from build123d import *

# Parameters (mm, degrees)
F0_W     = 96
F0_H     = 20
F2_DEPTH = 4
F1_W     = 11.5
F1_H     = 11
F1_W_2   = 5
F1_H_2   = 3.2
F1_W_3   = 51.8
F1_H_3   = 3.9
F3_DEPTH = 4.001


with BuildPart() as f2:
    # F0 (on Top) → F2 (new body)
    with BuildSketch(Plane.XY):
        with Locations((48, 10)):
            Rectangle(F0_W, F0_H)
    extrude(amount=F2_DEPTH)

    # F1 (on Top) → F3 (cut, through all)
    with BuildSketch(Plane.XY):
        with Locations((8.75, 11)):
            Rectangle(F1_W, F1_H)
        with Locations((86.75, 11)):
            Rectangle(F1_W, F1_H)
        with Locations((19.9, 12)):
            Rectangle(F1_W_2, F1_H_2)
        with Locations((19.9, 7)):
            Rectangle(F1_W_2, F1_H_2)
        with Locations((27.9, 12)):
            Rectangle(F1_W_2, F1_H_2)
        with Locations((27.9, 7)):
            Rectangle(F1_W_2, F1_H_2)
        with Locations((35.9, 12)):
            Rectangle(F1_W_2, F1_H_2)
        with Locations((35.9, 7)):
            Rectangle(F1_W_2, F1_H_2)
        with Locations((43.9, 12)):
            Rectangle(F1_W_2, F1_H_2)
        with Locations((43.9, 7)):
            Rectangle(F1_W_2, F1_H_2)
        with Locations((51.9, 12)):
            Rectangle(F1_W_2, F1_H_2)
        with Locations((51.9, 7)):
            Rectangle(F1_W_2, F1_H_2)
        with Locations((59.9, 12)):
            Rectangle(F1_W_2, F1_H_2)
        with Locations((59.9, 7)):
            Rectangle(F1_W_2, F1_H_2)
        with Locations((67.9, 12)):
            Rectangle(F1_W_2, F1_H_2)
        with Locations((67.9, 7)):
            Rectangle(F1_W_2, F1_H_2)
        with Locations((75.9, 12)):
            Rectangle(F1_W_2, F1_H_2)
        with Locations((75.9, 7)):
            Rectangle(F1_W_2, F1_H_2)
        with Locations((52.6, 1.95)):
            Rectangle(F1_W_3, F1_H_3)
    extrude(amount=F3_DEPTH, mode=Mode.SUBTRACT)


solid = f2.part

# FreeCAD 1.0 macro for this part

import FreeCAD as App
import Part
import Sketcher
from FreeCAD import Vector
Q = App.Units.Quantity

doc = App.newDocument("Part")
body = doc.addObject("PartDesign::Body", "Body")

sketch1 = body.newObject("Sketcher::SketchObject", "Sketch")
sketch1.AttachmentSupport = (doc.getObject("XY_Plane"), [""])
sketch1.MapMode = "FlatFace"
sketch1.addGeometry([
    Part.LineSegment(Vector(0, 20, 0), Vector(0, 0, 0)),
    Part.LineSegment(Vector(0, 0, 0), Vector(96, 0, 0)),
    Part.LineSegment(Vector(96, 0, 0), Vector(96, 20, 0)),
    Part.LineSegment(Vector(96, 20, 0), Vector(0, 20, 0)),
], False)
sketch1.addConstraint([
    Sketcher.Constraint("Coincident", 0, 2, 1, 1),
    Sketcher.Constraint("Coincident", 1, 2, 2, 1),
    Sketcher.Constraint("Coincident", 2, 2, 3, 1),
    Sketcher.Constraint("Coincident", 3, 2, 0, 1),
    Sketcher.Constraint("Vertical", 0),
    Sketcher.Constraint("Horizontal", 1),
    Sketcher.Constraint("Vertical", 2),
    Sketcher.Constraint("Horizontal", 3),
    Sketcher.Constraint("Coincident", 0, 2, -1, 1),
    Sketcher.Constraint("DistanceX", 1, 1, 1, 2, Q("96 mm")),
    Sketcher.Constraint("DistanceY", 0, 2, 0, 1, Q("20 mm")),
])
pad1 = body.newObject("PartDesign::Pad", "Pad")
pad1.Profile = sketch1
pad1.Length = 4

sketch2 = body.newObject("Sketcher::SketchObject", "Sketch001")
sketch2.AttachmentSupport = (doc.getObject("XY_Plane"), [""])
sketch2.MapMode = "FlatFace"
sketch2.addGeometry([
    Part.LineSegment(Vector(3, 16.5, 0), Vector(3, 5.5, 0)),
    Part.LineSegment(Vector(3, 5.5, 0), Vector(14.5, 5.5, 0)),
    Part.LineSegment(Vector(14.5, 5.5, 0), Vector(14.5, 16.5, 0)),
    Part.LineSegment(Vector(14.5, 16.5, 0), Vector(3, 16.5, 0)),
    Part.LineSegment(Vector(81, 16.5, 0), Vector(81, 5.5, 0)),
    Part.LineSegment(Vector(81, 5.5, 0), Vector(92.5, 5.5, 0)),
    Part.LineSegment(Vector(92.5, 5.5, 0), Vector(92.5, 16.5, 0)),
    Part.LineSegment(Vector(92.5, 16.5, 0), Vector(81, 16.5, 0)),
    Part.LineSegment(Vector(17.4, 13.6, 0), Vector(17.4, 10.4, 0)),
    Part.LineSegment(Vector(17.4, 10.4, 0), Vector(22.4, 10.4, 0)),
    Part.LineSegment(Vector(22.4, 10.4, 0), Vector(22.4, 13.6, 0)),
    Part.LineSegment(Vector(22.4, 13.6, 0), Vector(17.4, 13.6, 0)),
    Part.LineSegment(Vector(17.4, 8.6, 0), Vector(17.4, 5.4, 0)),
    Part.LineSegment(Vector(17.4, 5.4, 0), Vector(22.4, 5.4, 0)),
    Part.LineSegment(Vector(22.4, 5.4, 0), Vector(22.4, 8.6, 0)),
    Part.LineSegment(Vector(22.4, 8.6, 0), Vector(17.4, 8.6, 0)),
    Part.LineSegment(Vector(25.4, 13.6, 0), Vector(25.4, 10.4, 0)),
    Part.LineSegment(Vector(25.4, 10.4, 0), Vector(30.4, 10.4, 0)),
    Part.LineSegment(Vector(30.4, 10.4, 0), Vector(30.4, 13.6, 0)),
    Part.LineSegment(Vector(30.4, 13.6, 0), Vector(25.4, 13.6, 0)),
    Part.LineSegment(Vector(25.4, 8.6, 0), Vector(25.4, 5.4, 0)),
    Part.LineSegment(Vector(25.4, 5.4, 0), Vector(30.4, 5.4, 0)),
    Part.LineSegment(Vector(30.4, 5.4, 0), Vector(30.4, 8.6, 0)),
    Part.LineSegment(Vector(30.4, 8.6, 0), Vector(25.4, 8.6, 0)),
    Part.LineSegment(Vector(33.4, 13.6, 0), Vector(33.4, 10.4, 0)),
    Part.LineSegment(Vector(33.4, 10.4, 0), Vector(38.4, 10.4, 0)),
    Part.LineSegment(Vector(38.4, 10.4, 0), Vector(38.4, 13.6, 0)),
    Part.LineSegment(Vector(38.4, 13.6, 0), Vector(33.4, 13.6, 0)),
    Part.LineSegment(Vector(33.4, 8.6, 0), Vector(33.4, 5.4, 0)),
    Part.LineSegment(Vector(33.4, 5.4, 0), Vector(38.4, 5.4, 0)),
    Part.LineSegment(Vector(38.4, 5.4, 0), Vector(38.4, 8.6, 0)),
    Part.LineSegment(Vector(38.4, 8.6, 0), Vector(33.4, 8.6, 0)),
    Part.LineSegment(Vector(41.4, 13.6, 0), Vector(41.4, 10.4, 0)),
    Part.LineSegment(Vector(41.4, 10.4, 0), Vector(46.4, 10.4, 0)),
    Part.LineSegment(Vector(46.4, 10.4, 0), Vector(46.4, 13.6, 0)),
    Part.LineSegment(Vector(46.4, 13.6, 0), Vector(41.4, 13.6, 0)),
    Part.LineSegment(Vector(41.4, 8.6, 0), Vector(41.4, 5.4, 0)),
    Part.LineSegment(Vector(41.4, 5.4, 0), Vector(46.4, 5.4, 0)),
    Part.LineSegment(Vector(46.4, 5.4, 0), Vector(46.4, 8.6, 0)),
    Part.LineSegment(Vector(46.4, 8.6, 0), Vector(41.4, 8.6, 0)),
    Part.LineSegment(Vector(49.4, 13.6, 0), Vector(49.4, 10.4, 0)),
    Part.LineSegment(Vector(49.4, 10.4, 0), Vector(54.4, 10.4, 0)),
    Part.LineSegment(Vector(54.4, 10.4, 0), Vector(54.4, 13.6, 0)),
    Part.LineSegment(Vector(54.4, 13.6, 0), Vector(49.4, 13.6, 0)),
    Part.LineSegment(Vector(49.4, 8.6, 0), Vector(49.4, 5.4, 0)),
    Part.LineSegment(Vector(49.4, 5.4, 0), Vector(54.4, 5.4, 0)),
    Part.LineSegment(Vector(54.4, 5.4, 0), Vector(54.4, 8.6, 0)),
    Part.LineSegment(Vector(54.4, 8.6, 0), Vector(49.4, 8.6, 0)),
    Part.LineSegment(Vector(57.4, 13.6, 0), Vector(57.4, 10.4, 0)),
    Part.LineSegment(Vector(57.4, 10.4, 0), Vector(62.4, 10.4, 0)),
    Part.LineSegment(Vector(62.4, 10.4, 0), Vector(62.4, 13.6, 0)),
    Part.LineSegment(Vector(62.4, 13.6, 0), Vector(57.4, 13.6, 0)),
    Part.LineSegment(Vector(57.4, 8.6, 0), Vector(57.4, 5.4, 0)),
    Part.LineSegment(Vector(57.4, 5.4, 0), Vector(62.4, 5.4, 0)),
    Part.LineSegment(Vector(62.4, 5.4, 0), Vector(62.4, 8.6, 0)),
    Part.LineSegment(Vector(62.4, 8.6, 0), Vector(57.4, 8.6, 0)),
    Part.LineSegment(Vector(65.4, 13.6, 0), Vector(65.4, 10.4, 0)),
    Part.LineSegment(Vector(65.4, 10.4, 0), Vector(70.4, 10.4, 0)),
    Part.LineSegment(Vector(70.4, 10.4, 0), Vector(70.4, 13.6, 0)),
    Part.LineSegment(Vector(70.4, 13.6, 0), Vector(65.4, 13.6, 0)),
    Part.LineSegment(Vector(65.4, 8.6, 0), Vector(65.4, 5.4, 0)),
    Part.LineSegment(Vector(65.4, 5.4, 0), Vector(70.4, 5.4, 0)),
    Part.LineSegment(Vector(70.4, 5.4, 0), Vector(70.4, 8.6, 0)),
    Part.LineSegment(Vector(70.4, 8.6, 0), Vector(65.4, 8.6, 0)),
    Part.LineSegment(Vector(73.4, 13.6, 0), Vector(73.4, 10.4, 0)),
    Part.LineSegment(Vector(73.4, 10.4, 0), Vector(78.4, 10.4, 0)),
    Part.LineSegment(Vector(78.4, 10.4, 0), Vector(78.4, 13.6, 0)),
    Part.LineSegment(Vector(78.4, 13.6, 0), Vector(73.4, 13.6, 0)),
    Part.LineSegment(Vector(73.4, 8.6, 0), Vector(73.4, 5.4, 0)),
    Part.LineSegment(Vector(73.4, 5.4, 0), Vector(78.4, 5.4, 0)),
    Part.LineSegment(Vector(78.4, 5.4, 0), Vector(78.4, 8.6, 0)),
    Part.LineSegment(Vector(78.4, 8.6, 0), Vector(73.4, 8.6, 0)),
    Part.LineSegment(Vector(26.7, 3.9, 0), Vector(26.7, 0, 0)),
    Part.LineSegment(Vector(26.7, 0, 0), Vector(78.5, 0, 0)),
    Part.LineSegment(Vector(78.5, 0, 0), Vector(78.5, 3.9, 0)),
    Part.LineSegment(Vector(78.5, 3.9, 0), Vector(26.7, 3.9, 0)),
], False)
sketch2.addConstraint([
    Sketcher.Constraint("Coincident", 0, 2, 1, 1),
    Sketcher.Constraint("Coincident", 1, 2, 2, 1),
    Sketcher.Constraint("Coincident", 2, 2, 3, 1),
    Sketcher.Constraint("Coincident", 3, 2, 0, 1),
    Sketcher.Constraint("Coincident", 4, 2, 5, 1),
    Sketcher.Constraint("Coincident", 5, 2, 6, 1),
    Sketcher.Constraint("Coincident", 6, 2, 7, 1),
    Sketcher.Constraint("Coincident", 7, 2, 4, 1),
    Sketcher.Constraint("Coincident", 8, 2, 9, 1),
    Sketcher.Constraint("Coincident", 9, 2, 10, 1),
    Sketcher.Constraint("Coincident", 10, 2, 11, 1),
    Sketcher.Constraint("Coincident", 11, 2, 8, 1),
    Sketcher.Constraint("Coincident", 12, 2, 13, 1),
    Sketcher.Constraint("Coincident", 13, 2, 14, 1),
    Sketcher.Constraint("Coincident", 14, 2, 15, 1),
    Sketcher.Constraint("Coincident", 15, 2, 12, 1),
    Sketcher.Constraint("Coincident", 16, 2, 17, 1),
    Sketcher.Constraint("Coincident", 17, 2, 18, 1),
    Sketcher.Constraint("Coincident", 18, 2, 19, 1),
    Sketcher.Constraint("Coincident", 19, 2, 16, 1),
    Sketcher.Constraint("Coincident", 20, 2, 21, 1),
    Sketcher.Constraint("Coincident", 21, 2, 22, 1),
    Sketcher.Constraint("Coincident", 22, 2, 23, 1),
    Sketcher.Constraint("Coincident", 23, 2, 20, 1),
    Sketcher.Constraint("Coincident", 24, 2, 25, 1),
    Sketcher.Constraint("Coincident", 25, 2, 26, 1),
    Sketcher.Constraint("Coincident", 26, 2, 27, 1),
    Sketcher.Constraint("Coincident", 27, 2, 24, 1),
    Sketcher.Constraint("Coincident", 28, 2, 29, 1),
    Sketcher.Constraint("Coincident", 29, 2, 30, 1),
    Sketcher.Constraint("Coincident", 30, 2, 31, 1),
    Sketcher.Constraint("Coincident", 31, 2, 28, 1),
    Sketcher.Constraint("Coincident", 32, 2, 33, 1),
    Sketcher.Constraint("Coincident", 33, 2, 34, 1),
    Sketcher.Constraint("Coincident", 34, 2, 35, 1),
    Sketcher.Constraint("Coincident", 35, 2, 32, 1),
    Sketcher.Constraint("Coincident", 36, 2, 37, 1),
    Sketcher.Constraint("Coincident", 37, 2, 38, 1),
    Sketcher.Constraint("Coincident", 38, 2, 39, 1),
    Sketcher.Constraint("Coincident", 39, 2, 36, 1),
    Sketcher.Constraint("Coincident", 40, 2, 41, 1),
    Sketcher.Constraint("Coincident", 41, 2, 42, 1),
    Sketcher.Constraint("Coincident", 42, 2, 43, 1),
    Sketcher.Constraint("Coincident", 43, 2, 40, 1),
    Sketcher.Constraint("Coincident", 44, 2, 45, 1),
    Sketcher.Constraint("Coincident", 45, 2, 46, 1),
    Sketcher.Constraint("Coincident", 46, 2, 47, 1),
    Sketcher.Constraint("Coincident", 47, 2, 44, 1),
    Sketcher.Constraint("Coincident", 48, 2, 49, 1),
    Sketcher.Constraint("Coincident", 49, 2, 50, 1),
    Sketcher.Constraint("Coincident", 50, 2, 51, 1),
    Sketcher.Constraint("Coincident", 51, 2, 48, 1),
    Sketcher.Constraint("Coincident", 52, 2, 53, 1),
    Sketcher.Constraint("Coincident", 53, 2, 54, 1),
    Sketcher.Constraint("Coincident", 54, 2, 55, 1),
    Sketcher.Constraint("Coincident", 55, 2, 52, 1),
    Sketcher.Constraint("Coincident", 56, 2, 57, 1),
    Sketcher.Constraint("Coincident", 57, 2, 58, 1),
    Sketcher.Constraint("Coincident", 58, 2, 59, 1),
    Sketcher.Constraint("Coincident", 59, 2, 56, 1),
    Sketcher.Constraint("Coincident", 60, 2, 61, 1),
    Sketcher.Constraint("Coincident", 61, 2, 62, 1),
    Sketcher.Constraint("Coincident", 62, 2, 63, 1),
    Sketcher.Constraint("Coincident", 63, 2, 60, 1),
    Sketcher.Constraint("Coincident", 64, 2, 65, 1),
    Sketcher.Constraint("Coincident", 65, 2, 66, 1),
    Sketcher.Constraint("Coincident", 66, 2, 67, 1),
    Sketcher.Constraint("Coincident", 67, 2, 64, 1),
    Sketcher.Constraint("Coincident", 68, 2, 69, 1),
    Sketcher.Constraint("Coincident", 69, 2, 70, 1),
    Sketcher.Constraint("Coincident", 70, 2, 71, 1),
    Sketcher.Constraint("Coincident", 71, 2, 68, 1),
    Sketcher.Constraint("Coincident", 72, 2, 73, 1),
    Sketcher.Constraint("Coincident", 73, 2, 74, 1),
    Sketcher.Constraint("Coincident", 74, 2, 75, 1),
    Sketcher.Constraint("Coincident", 75, 2, 72, 1),
    Sketcher.Constraint("Vertical", 0),
    Sketcher.Constraint("Horizontal", 1),
    Sketcher.Constraint("Vertical", 2),
    Sketcher.Constraint("Horizontal", 3),
    Sketcher.Constraint("Vertical", 4),
    Sketcher.Constraint("Horizontal", 5),
    Sketcher.Constraint("Vertical", 6),
    Sketcher.Constraint("Horizontal", 7),
    Sketcher.Constraint("Vertical", 8),
    Sketcher.Constraint("Horizontal", 9),
    Sketcher.Constraint("Vertical", 10),
    Sketcher.Constraint("Horizontal", 11),
    Sketcher.Constraint("Vertical", 12),
    Sketcher.Constraint("Horizontal", 13),
    Sketcher.Constraint("Vertical", 14),
    Sketcher.Constraint("Horizontal", 15),
    Sketcher.Constraint("Vertical", 16),
    Sketcher.Constraint("Horizontal", 17),
    Sketcher.Constraint("Vertical", 18),
    Sketcher.Constraint("Horizontal", 19),
    Sketcher.Constraint("Vertical", 20),
    Sketcher.Constraint("Horizontal", 21),
    Sketcher.Constraint("Vertical", 22),
    Sketcher.Constraint("Horizontal", 23),
    Sketcher.Constraint("Vertical", 24),
    Sketcher.Constraint("Horizontal", 25),
    Sketcher.Constraint("Vertical", 26),
    Sketcher.Constraint("Horizontal", 27),
    Sketcher.Constraint("Vertical", 28),
    Sketcher.Constraint("Horizontal", 29),
    Sketcher.Constraint("Vertical", 30),
    Sketcher.Constraint("Horizontal", 31),
    Sketcher.Constraint("Vertical", 32),
    Sketcher.Constraint("Horizontal", 33),
    Sketcher.Constraint("Vertical", 34),
    Sketcher.Constraint("Horizontal", 35),
    Sketcher.Constraint("Vertical", 36),
    Sketcher.Constraint("Horizontal", 37),
    Sketcher.Constraint("Vertical", 38),
    Sketcher.Constraint("Horizontal", 39),
    Sketcher.Constraint("Vertical", 40),
    Sketcher.Constraint("Horizontal", 41),
    Sketcher.Constraint("Vertical", 42),
    Sketcher.Constraint("Horizontal", 43),
    Sketcher.Constraint("Vertical", 44),
    Sketcher.Constraint("Horizontal", 45),
    Sketcher.Constraint("Vertical", 46),
    Sketcher.Constraint("Horizontal", 47),
    Sketcher.Constraint("Vertical", 48),
    Sketcher.Constraint("Horizontal", 49),
    Sketcher.Constraint("Vertical", 50),
    Sketcher.Constraint("Horizontal", 51),
    Sketcher.Constraint("Vertical", 52),
    Sketcher.Constraint("Horizontal", 53),
    Sketcher.Constraint("Vertical", 54),
    Sketcher.Constraint("Horizontal", 55),
    Sketcher.Constraint("Vertical", 56),
    Sketcher.Constraint("Horizontal", 57),
    Sketcher.Constraint("Vertical", 58),
    Sketcher.Constraint("Horizontal", 59),
    Sketcher.Constraint("Vertical", 60),
    Sketcher.Constraint("Horizontal", 61),
    Sketcher.Constraint("Vertical", 62),
    Sketcher.Constraint("Horizontal", 63),
    Sketcher.Constraint("Vertical", 64),
    Sketcher.Constraint("Horizontal", 65),
    Sketcher.Constraint("Vertical", 66),
    Sketcher.Constraint("Horizontal", 67),
    Sketcher.Constraint("Vertical", 68),
    Sketcher.Constraint("Horizontal", 69),
    Sketcher.Constraint("Vertical", 70),
    Sketcher.Constraint("Horizontal", 71),
    Sketcher.Constraint("Vertical", 72),
    Sketcher.Constraint("Horizontal", 73),
    Sketcher.Constraint("Vertical", 74),
    Sketcher.Constraint("Horizontal", 75),
    Sketcher.Constraint("PointOnObject", 72, 2, -1),
    Sketcher.Constraint("Horizontal", 1, 2, 4, 2),
    Sketcher.Constraint("Horizontal", 3, 2, 6, 2),
    Sketcher.Constraint("Horizontal", 9, 2, 16, 2),
    Sketcher.Constraint("Horizontal", 11, 2, 18, 2),
    Sketcher.Constraint("Horizontal", 13, 2, 20, 2),
    Sketcher.Constraint("Horizontal", 15, 2, 22, 2),
    Sketcher.Constraint("Horizontal", 17, 2, 24, 2),
    Sketcher.Constraint("Horizontal", 19, 2, 26, 2),
    Sketcher.Constraint("Horizontal", 21, 2, 28, 2),
    Sketcher.Constraint("Horizontal", 23, 2, 30, 2),
    Sketcher.Constraint("Horizontal", 25, 2, 32, 2),
    Sketcher.Constraint("Horizontal", 27, 2, 34, 2),
    Sketcher.Constraint("Horizontal", 29, 2, 36, 2),
    Sketcher.Constraint("Horizontal", 31, 2, 38, 2),
    Sketcher.Constraint("Horizontal", 33, 2, 40, 2),
    Sketcher.Constraint("Horizontal", 35, 2, 42, 2),
    Sketcher.Constraint("Horizontal", 37, 2, 44, 2),
    Sketcher.Constraint("Horizontal", 39, 2, 46, 2),
    Sketcher.Constraint("Horizontal", 41, 2, 48, 2),
    Sketcher.Constraint("Horizontal", 43, 2, 50, 2),
    Sketcher.Constraint("Horizontal", 45, 2, 52, 2),
    Sketcher.Constraint("Horizontal", 47, 2, 54, 2),
    Sketcher.Constraint("Horizontal", 49, 2, 56, 2),
    Sketcher.Constraint("Horizontal", 51, 2, 58, 2),
    Sketcher.Constraint("Horizontal", 53, 2, 60, 2),
    Sketcher.Constraint("Horizontal", 55, 2, 62, 2),
    Sketcher.Constraint("Horizontal", 57, 2, 64, 2),
    Sketcher.Constraint("Horizontal", 59, 2, 66, 2),
    Sketcher.Constraint("Horizontal", 61, 2, 68, 2),
    Sketcher.Constraint("Horizontal", 63, 2, 70, 2),
    Sketcher.Constraint("Vertical", 11, 2, 12, 2),
    Sketcher.Constraint("Vertical", 10, 2, 13, 2),
    Sketcher.Constraint("Vertical", 19, 2, 20, 2),
    Sketcher.Constraint("Vertical", 18, 2, 21, 2),
    Sketcher.Constraint("Vertical", 27, 2, 28, 2),
    Sketcher.Constraint("Vertical", 26, 2, 29, 2),
    Sketcher.Constraint("Vertical", 35, 2, 36, 2),
    Sketcher.Constraint("Vertical", 34, 2, 37, 2),
    Sketcher.Constraint("Vertical", 43, 2, 44, 2),
    Sketcher.Constraint("Vertical", 42, 2, 45, 2),
    Sketcher.Constraint("Vertical", 51, 2, 52, 2),
    Sketcher.Constraint("Vertical", 50, 2, 53, 2),
    Sketcher.Constraint("Vertical", 59, 2, 60, 2),
    Sketcher.Constraint("Vertical", 58, 2, 61, 2),
    Sketcher.Constraint("Vertical", 67, 2, 68, 2),
    Sketcher.Constraint("Vertical", 66, 2, 69, 2),
    Sketcher.Constraint("Equal", 3, 5),
    Sketcher.Constraint("Equal", 15, 17),
    Sketcher.Constraint("Equal", 23, 25),
    Sketcher.Constraint("Equal", 31, 33),
    Sketcher.Constraint("Equal", 39, 41),
    Sketcher.Constraint("Equal", 47, 49),
    Sketcher.Constraint("Equal", 55, 57),
    Sketcher.Constraint("Equal", 63, 65),
    Sketcher.Constraint("Equal", 10, 12),
    Sketcher.Constraint("DistanceX", 9, 1, 9, 2, Q("5 mm")),
    Sketcher.Constraint("DistanceY", 0, 2, 0, 1, Q("11 mm")),
    Sketcher.Constraint("DistanceX", 1, 1, 1, 2, Q("11.5 mm")),
    Sketcher.Constraint("DistanceX", 73, 1, 73, 2, Q("51.8 mm")),
    Sketcher.Constraint("DistanceY", 8, 2, 8, 1, Q("3.2 mm")),
    Sketcher.Constraint("DistanceY", 72, 2, 72, 1, Q("3.9 mm")),
    Sketcher.Constraint("DistanceX", -1, 1, 0, 2, Q("3 mm")),
    Sketcher.Constraint("DistanceX", -1, 1, 4, 2, Q("81 mm")),
    Sketcher.Constraint("DistanceY", -1, 1, 0, 2, Q("5.5 mm")),
    Sketcher.Constraint("DistanceX", -1, 1, 8, 2, Q("17.4 mm")),
    Sketcher.Constraint("DistanceY", -1, 1, 8, 2, Q("10.4 mm")),
    Sketcher.Constraint("DistanceY", -1, 1, 12, 2, Q("5.4 mm")),
    Sketcher.Constraint("DistanceX", -1, 1, 16, 2, Q("25.4 mm")),
    Sketcher.Constraint("DistanceX", -1, 1, 24, 2, Q("33.4 mm")),
    Sketcher.Constraint("DistanceX", -1, 1, 32, 2, Q("41.4 mm")),
    Sketcher.Constraint("DistanceX", -1, 1, 40, 2, Q("49.4 mm")),
    Sketcher.Constraint("DistanceX", -1, 1, 48, 2, Q("57.4 mm")),
    Sketcher.Constraint("DistanceX", -1, 1, 56, 2, Q("65.4 mm")),
    Sketcher.Constraint("DistanceX", -1, 1, 64, 2, Q("73.4 mm")),
    Sketcher.Constraint("DistanceX", -1, 1, 72, 2, Q("26.7 mm")),
])
pocket1 = body.newObject("PartDesign::Pocket", "Pocket")
pocket1.Profile = sketch2
pocket1.Type = "ThroughAll"
pocket1.Reversed = True

doc.recompute()
